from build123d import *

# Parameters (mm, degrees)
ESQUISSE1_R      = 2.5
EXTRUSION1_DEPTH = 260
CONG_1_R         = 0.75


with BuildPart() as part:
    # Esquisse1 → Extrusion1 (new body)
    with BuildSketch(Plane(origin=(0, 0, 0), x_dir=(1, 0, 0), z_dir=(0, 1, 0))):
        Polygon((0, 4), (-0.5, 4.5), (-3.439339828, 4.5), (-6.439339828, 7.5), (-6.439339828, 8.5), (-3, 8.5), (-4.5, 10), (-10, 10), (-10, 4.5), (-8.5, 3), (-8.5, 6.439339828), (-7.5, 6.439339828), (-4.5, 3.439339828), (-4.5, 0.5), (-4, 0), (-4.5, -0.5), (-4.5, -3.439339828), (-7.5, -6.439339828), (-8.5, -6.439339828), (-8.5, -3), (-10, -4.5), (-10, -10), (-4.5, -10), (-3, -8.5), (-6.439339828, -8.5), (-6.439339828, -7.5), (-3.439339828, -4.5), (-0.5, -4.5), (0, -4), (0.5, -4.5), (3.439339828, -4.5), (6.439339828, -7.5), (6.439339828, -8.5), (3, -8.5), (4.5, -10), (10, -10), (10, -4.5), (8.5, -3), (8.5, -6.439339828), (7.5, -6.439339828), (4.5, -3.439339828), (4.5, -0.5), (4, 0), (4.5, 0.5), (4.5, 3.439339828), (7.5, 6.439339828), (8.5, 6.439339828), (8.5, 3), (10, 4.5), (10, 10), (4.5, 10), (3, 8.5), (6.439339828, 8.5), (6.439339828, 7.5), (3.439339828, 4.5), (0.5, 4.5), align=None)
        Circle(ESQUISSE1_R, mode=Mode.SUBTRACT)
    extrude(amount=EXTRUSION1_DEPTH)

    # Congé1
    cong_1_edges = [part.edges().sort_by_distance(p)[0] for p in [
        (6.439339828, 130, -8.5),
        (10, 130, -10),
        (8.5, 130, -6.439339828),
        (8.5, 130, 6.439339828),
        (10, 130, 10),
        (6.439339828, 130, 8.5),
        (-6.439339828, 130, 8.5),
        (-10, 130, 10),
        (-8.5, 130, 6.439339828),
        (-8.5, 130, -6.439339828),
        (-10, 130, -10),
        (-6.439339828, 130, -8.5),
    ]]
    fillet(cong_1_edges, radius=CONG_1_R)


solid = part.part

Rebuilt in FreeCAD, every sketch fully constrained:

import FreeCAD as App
import Part
import Sketcher

V = App.Vector


def edges_at(feature, points):
    """Names of the edges that pass closest to the given points."""
    edges = feature.Shape.Edges
    near = lambda p: min(range(len(edges)), key=lambda i: edges[i].distToShape(Part.Vertex(*p))[0])
    return sorted({f"Edge{near(p) + 1}" for p in points})

doc = App.newDocument("Part")
body = doc.addObject("PartDesign::Body", "Body")

sketch1 = body.newObject("Sketcher::SketchObject", "Sketch")
sketch1.AttachmentSupport = (doc.getObject("XZ_Plane"), [""])
sketch1.MapMode = "FlatFace"
sketch1.addGeometry([
    Part.LineSegment(V(0, -4, 0), V(-0.5, -4.5, 0)),
    Part.LineSegment(V(-0.5, -4.5, 0), V(-3.43934, -4.5, 0)),
    Part.LineSegment(V(-3.43934, -4.5, 0), V(-6.43934, -7.5, 0)),
    Part.LineSegment(V(-6.43934, -7.5, 0), V(-6.43934, -8.5, 0)),
    Part.LineSegment(V(-6.43934, -8.5, 0), V(-3, -8.5, 0)),
    Part.LineSegment(V(-3, -8.5, 0), V(-4.5, -10, 0)),
    Part.LineSegment(V(-4.5, -10, 0), V(-10, -10, 0)),
    Part.LineSegment(V(-10, -10, 0), V(-10, -4.5, 0)),
    Part.LineSegment(V(-10, -4.5, 0), V(-8.5, -3, 0)),
    Part.LineSegment(V(-8.5, -3, 0), V(-8.5, -6.43934, 0)),
    Part.LineSegment(V(-8.5, -6.43934, 0), V(-7.5, -6.43934, 0)),
    Part.LineSegment(V(-7.5, -6.43934, 0), V(-4.5, -3.43934, 0)),
    Part.LineSegment(V(-4.5, -3.43934, 0), V(-4.5, -0.5, 0)),
    Part.LineSegment(V(-4.5, -0.5, 0), V(-4, 0, 0)),
    Part.LineSegment(V(-4, 0, 0), V(-4.5, 0.5, 0)),
    Part.LineSegment(V(-4.5, 0.5, 0), V(-4.5, 3.43934, 0)),
    Part.LineSegment(V(-4.5, 3.43934, 0), V(-7.5, 6.43934, 0)),
    Part.LineSegment(V(-7.5, 6.43934, 0), V(-8.5, 6.43934, 0)),
    Part.LineSegment(V(-8.5, 6.43934, 0), V(-8.5, 3, 0)),
    Part.LineSegment(V(-8.5, 3, 0), V(-10, 4.5, 0)),
    Part.LineSegment(V(-10, 4.5, 0), V(-10, 10, 0)),
    Part.LineSegment(V(-10, 10, 0), V(-4.5, 10, 0)),
    Part.LineSegment(V(-4.5, 10, 0), V(-3, 8.5, 0)),
    Part.LineSegment(V(-3, 8.5, 0), V(-6.43934, 8.5, 0)),
    Part.LineSegment(V(-6.43934, 8.5, 0), V(-6.43934, 7.5, 0)),
    Part.LineSegment(V(-6.43934, 7.5, 0), V(-3.43934, 4.5, 0)),
    Part.LineSegment(V(-3.43934, 4.5, 0), V(-0.5, 4.5, 0)),
    Part.LineSegment(V(-0.5, 4.5, 0), V(0, 4, 0)),
    Part.LineSegment(V(0, 4, 0), V(0.5, 4.5, 0)),
    Part.LineSegment(V(0.5, 4.5, 0), V(3.43934, 4.5, 0)),
    Part.LineSegment(V(3.43934, 4.5, 0), V(6.43934, 7.5, 0)),
    Part.LineSegment(V(6.43934, 7.5, 0), V(6.43934, 8.5, 0)),
    Part.LineSegment(V(6.43934, 8.5, 0), V(3, 8.5, 0)),
    Part.LineSegment(V(3, 8.5, 0), V(4.5, 10, 0)),
    Part.LineSegment(V(4.5, 10, 0), V(10, 10, 0)),
    Part.LineSegment(V(10, 10, 0), V(10, 4.5, 0)),
    Part.LineSegment(V(10, 4.5, 0), V(8.5, 3, 0)),
    Part.LineSegment(V(8.5, 3, 0), V(8.5, 6.43934, 0)),
    Part.LineSegment(V(8.5, 6.43934, 0), V(7.5, 6.43934, 0)),
    Part.LineSegment(V(7.5, 6.43934, 0), V(4.5, 3.43934, 0)),
    Part.LineSegment(V(4.5, 3.43934, 0), V(4.5, 0.5, 0)),
    Part.LineSegment(V(4.5, 0.5, 0), V(4, 0, 0)),
    Part.LineSegment(V(4, 0, 0), V(4.5, -0.5, 0)),
    Part.LineSegment(V(4.5, -0.5, 0), V(4.5, -3.43934, 0)),
    Part.LineSegment(V(4.5, -3.43934, 0), V(7.5, -6.43934, 0)),
    Part.LineSegment(V(7.5, -6.43934, 0), V(8.5, -6.43934, 0)),
    Part.LineSegment(V(8.5, -6.43934, 0), V(8.5, -3, 0)),
    Part.LineSegment(V(8.5, -3, 0), V(10, -4.5, 0)),
    Part.LineSegment(V(10, -4.5, 0), V(10, -10, 0)),
    Part.LineSegment(V(10, -10, 0), V(4.5, -10, 0)),
    Part.LineSegment(V(4.5, -10, 0), V(3, -8.5, 0)),
    Part.LineSegment(V(3, -8.5, 0), V(6.43934, -8.5, 0)),
    Part.LineSegment(V(6.43934, -8.5, 0), V(6.43934, -7.5, 0)),
    Part.LineSegment(V(6.43934, -7.5, 0), V(3.43934, -4.5, 0)),
    Part.LineSegment(V(3.43934, -4.5, 0), V(0.5, -4.5, 0)),
    Part.LineSegment(V(0.5, -4.5, 0), V(0, -4, 0)),
    Part.Circle(V(0, 0, 0), V(0, 0, 1), 2.5),
], False)
sketch1.addConstraint([
    Sketcher.Constraint("Coincident", 0, 2, 1, 1),
    Sketcher.Constraint("Coincident", 1, 2, 2, 1),
    Sketcher.Constraint("Coincident", 2, 2, 3, 1),
    Sketcher.Constraint("Coincident", 3, 2, 4, 1),
    Sketcher.Constraint("Coincident", 4, 2, 5, 1),
    Sketcher.Constraint("Coincident", 5, 2, 6, 1),
    Sketcher.Constraint("Coincident", 6, 2, 7, 1),
    Sketcher.Constraint("Coincident", 7, 2, 8, 1),
    Sketcher.Constraint("Coincident", 8, 2, 9, 1),
    Sketcher.Constraint("Coincident", 9, 2, 10, 1),
    Sketcher.Constraint("Coincident", 10, 2, 11, 1),
    Sketcher.Constraint("Coincident", 11, 2, 12, 1),
    Sketcher.Constraint("Coincident", 12, 2, 13, 1),
    Sketcher.Constraint("Coincident", 13, 2, 14, 1),
    Sketcher.Constraint("Coincident", 14, 2, 15, 1),
    Sketcher.Constraint("Coincident", 15, 2, 16, 1),
    Sketcher.Constraint("Coincident", 16, 2, 17, 1),
    Sketcher.Constraint("Coincident", 17, 2, 18, 1),
    Sketcher.Constraint("Coincident", 18, 2, 19, 1),
    Sketcher.Constraint("Coincident", 19, 2, 20, 1),
    Sketcher.Constraint("Coincident", 20, 2, 21, 1),
    Sketcher.Constraint("Coincident", 21, 2, 22, 1),
    Sketcher.Constraint("Coincident", 22, 2, 23, 1),
    Sketcher.Constraint("Coincident", 23, 2, 24, 1),
    Sketcher.Constraint("Coincident", 24, 2, 25, 1),
    Sketcher.Constraint("Coincident", 25, 2, 26, 1),
    Sketcher.Constraint("Coincident", 26, 2, 27, 1),
    Sketcher.Constraint("Coincident", 27, 2, 28, 1),
    Sketcher.Constraint("Coincident", 28, 2, 29, 1),
    Sketcher.Constraint("Coincident", 29, 2, 30, 1),
    Sketcher.Constraint("Coincident", 30, 2, 31, 1),
    Sketcher.Constraint("Coincident", 31, 2, 32, 1),
    Sketcher.Constraint("Coincident", 32, 2, 33, 1),
    Sketcher.Constraint("Coincident", 33, 2, 34, 1),
    Sketcher.Constraint("Coincident", 34, 2, 35, 1),
    Sketcher.Constraint("Coincident", 35, 2, 36, 1),
    Sketcher.Constraint("Coincident", 36, 2, 37, 1),
    Sketcher.Constraint("Coincident", 37, 2, 38, 1),
    Sketcher.Constraint("Coincident", 38, 2, 39, 1),
    Sketcher.Constraint("Coincident", 39, 2, 40, 1),
    Sketcher.Constraint("Coincident", 40, 2, 41, 1),
    Sketcher.Constraint("Coincident", 41, 2, 42, 1),
    Sketcher.Constraint("Coincident", 42, 2, 43, 1),
    Sketcher.Constraint("Coincident", 43, 2, 44, 1),
    Sketcher.Constraint("Coincident", 44, 2, 45, 1),
    Sketcher.Constraint("Coincident", 45, 2, 46, 1),
    Sketcher.Constraint("Coincident", 46, 2, 47, 1),
    Sketcher.Constraint("Coincident", 47, 2, 48, 1),
    Sketcher.Constraint("Coincident", 48, 2, 49, 1),
    Sketcher.Constraint("Coincident", 49, 2, 50, 1),
    Sketcher.Constraint("Coincident", 50, 2, 51, 1),
    Sketcher.Constraint("Coincident", 51, 2, 52, 1),
    Sketcher.Constraint("Coincident", 52, 2, 53, 1),
    Sketcher.Constraint("Coincident", 53, 2, 54, 1),
    Sketcher.Constraint("Coincident", 54, 2, 55, 1),
    Sketcher.Constraint("Coincident", 55, 2, 0, 1),
    Sketcher.Constraint("Horizontal", 1),
    Sketcher.Constraint("Vertical", 3),
    Sketcher.Constraint("Horizontal", 4),
    Sketcher.Constraint("Horizontal", 6),
    Sketcher.Constraint("Vertical", 7),
    Sketcher.Constraint("Vertical", 9),
    Sketcher.Constraint("Horizontal", 10),
    Sketcher.Constraint("Vertical", 12),
    Sketcher.Constraint("Vertical", 15),
    Sketcher.Constraint("Horizontal", 17),
    Sketcher.Constraint("Vertical", 18),
    Sketcher.Constraint("Vertical", 20),
    Sketcher.Constraint("Horizontal", 21),
    Sketcher.Constraint("Horizontal", 23),
    Sketcher.Constraint("Vertical", 24),
    Sketcher.Constraint("Horizontal", 26),
    Sketcher.Constraint("Horizontal", 29),
    Sketcher.Constraint("Vertical", 31),
    Sketcher.Constraint("Horizontal", 32),
    Sketcher.Constraint("Horizontal", 34),
    Sketcher.Constraint("Vertical", 35),
    Sketcher.Constraint("Vertical", 37),
    Sketcher.Constraint("Horizontal", 38),
    Sketcher.Constraint("Vertical", 40),
    Sketcher.Constraint("Vertical", 43),
    Sketcher.Constraint("Horizontal", 45),
    Sketcher.Constraint("Vertical", 46),
    Sketcher.Constraint("Vertical", 48),
    Sketcher.Constraint("Horizontal", 49),
    Sketcher.Constraint("Horizontal", 51),
    Sketcher.Constraint("Vertical", 52),
    Sketcher.Constraint("Horizontal", 54),
    Sketcher.Constraint("Coincident", 56, 3, -1, 1),
    Sketcher.Constraint("Symmetric", 0, 2, 28, 2, -1, 1),
    Sketcher.Constraint("Symmetric", 2, 2, 30, 2, -1, 1),
    Sketcher.Constraint("Symmetric", 4, 2, 32, 2, -1, 1),
    Sketcher.Constraint("Symmetric", 5, 2, 33, 2, -1, 1),
    Sketcher.Constraint("Symmetric", 7, 2, 35, 2, -1, 1),
    Sketcher.Constraint("Symmetric", 8, 2, 36, 2, -1, 1),
    Sketcher.Constraint("Symmetric", 10, 2, 38, 2, -1, 1),
    Sketcher.Constraint("Symmetric", 11, 2, 39, 2, -1, 1),
    Sketcher.Constraint("Symmetric", 13, 2, 41, 2, -1, 1),
    Sketcher.Constraint("Symmetric", 14, 2, 42, 2, -1, 1),
    Sketcher.Constraint("Symmetric", 16, 2, 44, 2, -1, 1),
    Sketcher.Constraint("Symmetric", 18, 2, 46, 2, -1, 1),
    Sketcher.Constraint("Symmetric", 19, 2, 47, 2, -1, 1),
    Sketcher.Constraint("Symmetric", 21, 2, 49, 2, -1, 1),
    Sketcher.Constraint("Symmetric", 22, 2, 50, 2, -1, 1),
    Sketcher.Constraint("Symmetric", 24, 2, 52, 2, -1, 1),
    Sketcher.Constraint("Symmetric", 25, 2, 53, 2, -1, 1),
    Sketcher.Constraint("Symmetric", 27, 2, 55, 2, -1, 1),
    Sketcher.Constraint("Symmetric", 26, 2, 28, 2, -2),
    Sketcher.Constraint("Symmetric", 24, 2, 30, 2, -2),
    Sketcher.Constraint("Symmetric", 22, 2, 32, 2, -2),
    Sketcher.Constraint("Symmetric", 21, 2, 33, 2, -2),
    Sketcher.Constraint("Symmetric", 19, 2, 35, 2, -2),
    Sketcher.Constraint("Symmetric", 18, 2, 36, 2, -2),
    Sketcher.Constraint("Symmetric", 16, 2, 38, 2, -2),
    Sketcher.Constraint("Symmetric", 15, 2, 39, 2, -2),
    Sketcher.Constraint("PointOnObject", 13, 2, -1),
    Sketcher.Constraint("PointOnObject", 27, 2, -2),
    Sketcher.Constraint("Parallel", 0, 2),
    Sketcher.Constraint("Parallel", 2, 5),
    Sketcher.Constraint("Parallel", 5, 8),
    Sketcher.Constraint("Parallel", 8, 11),
    Sketcher.Constraint("Parallel", 11, 13),
    Sketcher.Constraint("Perpendicular", 13, 14),
    Sketcher.Constraint("Parallel", 14, 16),
    Sketcher.Constraint("Parallel", 22, 25),
    Sketcher.Constraint("Parallel", 28, 30),
    Sketcher.Constraint("Parallel", 39, 41),
    Sketcher.Constraint("Parallel", 42, 44),
    Sketcher.Constraint("Parallel", 53, 55),
    Sketcher.Constraint("Horizontal", 1, 2, 7, 2),
    Sketcher.Constraint("Vertical", 5, 2, 11, 2),
    Sketcher.Constraint("Equal", 45, 3),
    Sketcher.Constraint("Equal", 49, 7),
    Sketcher.Constraint("Equal", 51, 9),
    Sketcher.Constraint("Equal", 54, 12),
    Sketcher.Constraint("Equal", 5, 8),
    Sketcher.Constraint("Equal", 0, 13),
    Sketcher.Constraint("Diameter", 56, 5.0),
    Sketcher.Constraint("DistanceX", 10, 1, 10, 2, 1.0),
    Sketcher.Constraint("DistanceX", 6, 2, 6, 1, 5.5),
    Sketcher.Constraint("DistanceX", 4, 2, -1, 1, 3.0),
    Sketcher.Constraint("DistanceY", 5, 2, -1, 1, 10.0),
    Sketcher.Constraint("DistanceX", 13, 2, -1, 1, 4.0),
    Sketcher.Constraint("DistanceX", 1, 2, 1, 1, 2.93934),
])
pad1 = body.newObject("PartDesign::Pad", "Pad")
pad1.Profile = sketch1
pad1.Length = 260
pad1.Reversed = True
doc.recompute()

fillet = body.newObject("PartDesign::Fillet", "Fillet")
fillet.Base = (pad1, edges_at(pad1, [
    (6.439, 130, -8.5),
    (10, 130, -10),
    (8.5, 130, -6.439),
    (8.5, 130, 6.439),
    (10, 130, 10),
    (6.439, 130, 8.5),
    (-6.439, 130, 8.5),
    (-10, 130, 10),
    (-8.5, 130, 6.439),
    (-8.5, 130, -6.439),
    (-10, 130, -10),
    (-6.439, 130, -8.5),
]))
fillet.Radius = 0.75

doc.recompute()
